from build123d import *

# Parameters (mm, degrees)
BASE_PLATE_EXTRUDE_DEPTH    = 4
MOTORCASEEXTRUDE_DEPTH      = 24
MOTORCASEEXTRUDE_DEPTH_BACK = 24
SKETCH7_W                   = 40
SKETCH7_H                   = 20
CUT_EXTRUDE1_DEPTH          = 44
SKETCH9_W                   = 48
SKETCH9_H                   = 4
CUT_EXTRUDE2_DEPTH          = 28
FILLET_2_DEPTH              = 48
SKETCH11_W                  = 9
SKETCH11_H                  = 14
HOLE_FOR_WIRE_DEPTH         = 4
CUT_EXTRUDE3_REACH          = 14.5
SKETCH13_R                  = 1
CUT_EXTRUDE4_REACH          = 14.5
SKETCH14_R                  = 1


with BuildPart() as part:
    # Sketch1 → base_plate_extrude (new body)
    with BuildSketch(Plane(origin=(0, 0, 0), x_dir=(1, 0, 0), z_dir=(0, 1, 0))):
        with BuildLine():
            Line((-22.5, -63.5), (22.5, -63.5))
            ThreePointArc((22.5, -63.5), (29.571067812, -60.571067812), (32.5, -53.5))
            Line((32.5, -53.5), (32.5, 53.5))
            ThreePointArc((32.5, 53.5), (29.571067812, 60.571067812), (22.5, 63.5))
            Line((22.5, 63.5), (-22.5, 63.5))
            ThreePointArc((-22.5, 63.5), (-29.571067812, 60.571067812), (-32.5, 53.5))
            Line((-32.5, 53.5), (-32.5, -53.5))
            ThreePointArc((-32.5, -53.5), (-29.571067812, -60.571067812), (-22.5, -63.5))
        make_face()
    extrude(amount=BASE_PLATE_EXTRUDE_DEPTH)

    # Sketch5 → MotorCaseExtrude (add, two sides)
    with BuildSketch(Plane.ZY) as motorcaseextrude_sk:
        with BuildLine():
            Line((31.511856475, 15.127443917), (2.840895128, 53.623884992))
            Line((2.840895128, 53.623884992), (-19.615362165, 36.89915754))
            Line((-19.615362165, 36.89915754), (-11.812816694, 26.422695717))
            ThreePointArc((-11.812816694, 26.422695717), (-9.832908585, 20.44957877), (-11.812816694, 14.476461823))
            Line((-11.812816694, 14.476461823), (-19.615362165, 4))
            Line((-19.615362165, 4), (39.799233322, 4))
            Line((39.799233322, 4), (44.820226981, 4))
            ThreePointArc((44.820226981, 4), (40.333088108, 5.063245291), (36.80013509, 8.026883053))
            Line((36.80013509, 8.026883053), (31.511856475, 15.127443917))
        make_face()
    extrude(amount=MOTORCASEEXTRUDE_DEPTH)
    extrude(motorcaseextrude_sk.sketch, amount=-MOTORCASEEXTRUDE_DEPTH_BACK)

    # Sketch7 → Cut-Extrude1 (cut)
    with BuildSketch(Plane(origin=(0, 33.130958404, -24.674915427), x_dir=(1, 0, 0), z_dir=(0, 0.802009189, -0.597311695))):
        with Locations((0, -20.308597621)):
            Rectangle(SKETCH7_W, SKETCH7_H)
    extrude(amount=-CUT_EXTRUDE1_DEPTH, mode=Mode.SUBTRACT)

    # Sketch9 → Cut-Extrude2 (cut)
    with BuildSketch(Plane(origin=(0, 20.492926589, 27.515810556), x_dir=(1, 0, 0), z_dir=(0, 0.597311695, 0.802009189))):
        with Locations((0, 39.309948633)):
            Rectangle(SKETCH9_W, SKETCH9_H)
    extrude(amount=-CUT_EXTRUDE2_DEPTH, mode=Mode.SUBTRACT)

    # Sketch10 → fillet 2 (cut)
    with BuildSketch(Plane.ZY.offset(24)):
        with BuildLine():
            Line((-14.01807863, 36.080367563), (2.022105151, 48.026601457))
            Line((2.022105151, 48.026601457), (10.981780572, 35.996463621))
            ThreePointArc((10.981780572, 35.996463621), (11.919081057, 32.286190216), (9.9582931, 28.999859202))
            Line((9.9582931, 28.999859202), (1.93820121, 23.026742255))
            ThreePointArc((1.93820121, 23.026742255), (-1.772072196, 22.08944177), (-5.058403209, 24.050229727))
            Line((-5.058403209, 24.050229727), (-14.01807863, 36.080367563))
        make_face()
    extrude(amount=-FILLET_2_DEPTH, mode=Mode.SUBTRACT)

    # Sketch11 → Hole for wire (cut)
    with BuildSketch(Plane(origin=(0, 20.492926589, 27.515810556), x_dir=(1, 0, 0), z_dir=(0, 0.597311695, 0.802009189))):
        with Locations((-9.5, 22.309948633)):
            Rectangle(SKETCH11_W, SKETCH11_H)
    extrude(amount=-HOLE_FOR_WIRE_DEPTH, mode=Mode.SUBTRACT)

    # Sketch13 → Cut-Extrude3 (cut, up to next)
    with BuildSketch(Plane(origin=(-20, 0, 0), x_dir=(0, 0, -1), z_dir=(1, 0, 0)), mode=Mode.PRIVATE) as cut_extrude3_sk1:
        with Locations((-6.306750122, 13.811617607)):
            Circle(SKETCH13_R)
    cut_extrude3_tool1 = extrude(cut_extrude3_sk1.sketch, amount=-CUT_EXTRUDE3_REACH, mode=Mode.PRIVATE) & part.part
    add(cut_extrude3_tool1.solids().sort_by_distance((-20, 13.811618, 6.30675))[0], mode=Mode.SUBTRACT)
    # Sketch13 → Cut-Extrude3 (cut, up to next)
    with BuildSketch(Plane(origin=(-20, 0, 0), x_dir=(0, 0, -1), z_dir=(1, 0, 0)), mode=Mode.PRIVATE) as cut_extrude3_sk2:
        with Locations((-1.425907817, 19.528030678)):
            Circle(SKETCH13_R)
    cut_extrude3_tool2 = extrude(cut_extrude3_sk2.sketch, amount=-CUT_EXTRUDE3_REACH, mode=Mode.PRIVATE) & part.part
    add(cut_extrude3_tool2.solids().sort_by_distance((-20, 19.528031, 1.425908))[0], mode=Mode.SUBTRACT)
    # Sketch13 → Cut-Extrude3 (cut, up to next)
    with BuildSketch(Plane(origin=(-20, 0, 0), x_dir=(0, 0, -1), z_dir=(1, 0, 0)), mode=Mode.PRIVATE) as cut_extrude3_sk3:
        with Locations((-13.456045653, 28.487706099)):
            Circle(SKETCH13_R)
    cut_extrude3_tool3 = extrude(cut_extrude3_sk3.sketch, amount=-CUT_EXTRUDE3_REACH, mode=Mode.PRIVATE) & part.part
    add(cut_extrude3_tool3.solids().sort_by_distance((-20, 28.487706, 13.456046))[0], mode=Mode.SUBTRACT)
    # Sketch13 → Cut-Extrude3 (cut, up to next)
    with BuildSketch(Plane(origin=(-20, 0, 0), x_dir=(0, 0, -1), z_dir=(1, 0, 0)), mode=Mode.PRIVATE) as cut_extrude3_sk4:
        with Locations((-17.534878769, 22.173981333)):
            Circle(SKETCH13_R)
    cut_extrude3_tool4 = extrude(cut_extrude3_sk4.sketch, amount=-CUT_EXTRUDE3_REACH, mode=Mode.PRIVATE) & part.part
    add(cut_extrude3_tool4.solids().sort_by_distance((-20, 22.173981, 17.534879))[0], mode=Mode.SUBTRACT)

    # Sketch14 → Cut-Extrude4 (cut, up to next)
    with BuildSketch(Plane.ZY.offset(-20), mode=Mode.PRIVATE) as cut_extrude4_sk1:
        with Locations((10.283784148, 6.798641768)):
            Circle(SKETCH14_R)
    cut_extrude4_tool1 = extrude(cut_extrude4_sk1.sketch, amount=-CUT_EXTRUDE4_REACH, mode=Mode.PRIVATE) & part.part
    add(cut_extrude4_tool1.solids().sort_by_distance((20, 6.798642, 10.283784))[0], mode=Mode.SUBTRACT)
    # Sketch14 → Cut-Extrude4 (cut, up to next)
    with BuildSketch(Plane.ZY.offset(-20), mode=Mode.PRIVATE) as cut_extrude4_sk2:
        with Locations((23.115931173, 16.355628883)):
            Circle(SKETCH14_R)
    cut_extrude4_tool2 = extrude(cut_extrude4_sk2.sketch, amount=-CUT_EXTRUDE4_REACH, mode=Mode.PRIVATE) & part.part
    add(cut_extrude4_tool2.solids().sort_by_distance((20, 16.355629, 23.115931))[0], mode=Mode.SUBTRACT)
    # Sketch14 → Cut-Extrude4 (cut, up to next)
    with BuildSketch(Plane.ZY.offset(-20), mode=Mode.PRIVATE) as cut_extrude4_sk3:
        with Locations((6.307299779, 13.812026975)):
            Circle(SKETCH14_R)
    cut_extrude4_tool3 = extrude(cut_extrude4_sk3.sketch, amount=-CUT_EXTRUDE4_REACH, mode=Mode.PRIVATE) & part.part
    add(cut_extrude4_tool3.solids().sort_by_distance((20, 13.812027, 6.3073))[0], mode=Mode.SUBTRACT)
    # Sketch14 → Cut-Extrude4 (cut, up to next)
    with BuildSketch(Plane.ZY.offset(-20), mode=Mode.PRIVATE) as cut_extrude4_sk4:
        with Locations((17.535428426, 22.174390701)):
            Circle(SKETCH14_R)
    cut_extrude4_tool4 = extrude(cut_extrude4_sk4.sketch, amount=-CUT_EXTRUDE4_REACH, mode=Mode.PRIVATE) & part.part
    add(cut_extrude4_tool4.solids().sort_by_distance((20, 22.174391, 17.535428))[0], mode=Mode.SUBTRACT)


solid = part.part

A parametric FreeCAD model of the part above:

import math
import FreeCAD as App
import Part
import Sketcher
from FreeCAD import Vector
Q = App.Units.Quantity

doc = App.newDocument("Part")
body = doc.addObject("PartDesign::Body", "Body")

# Sketch on XZ plane
sketch1 = body.newObject("Sketcher::SketchObject", "Sketch")
sketch1.AttachmentSupport = (doc.getObject("XZ_Plane"), [""])
sketch1.MapMode = "FlatFace"
sketch1.addGeometry([
    Part.LineSegment(Vector(-22, 64, 0), Vector(22, 64, 0)),  # 0
    Part.ArcOfCircle(Part.Circle(Vector(22, 54, 0), Vector(0, 0, 1), 10), math.radians(0), math.radians(90)),  # 1
    Part.LineSegment(Vector(32, 54, 0), Vector(32, -54, 0)),  # 2
    Part.ArcOfCircle(Part.Circle(Vector(22, -54, 0), Vector(0, 0, 1), 10), math.radians(-90), math.radians(0)),  # 3
    Part.LineSegment(Vector(22, -64, 0), Vector(-22, -64, 0)),  # 4
    Part.ArcOfCircle(Part.Circle(Vector(-22, -54, 0), Vector(0, 0, 1), 10), math.radians(180), math.radians(270)),  # 5
    Part.LineSegment(Vector(-32, -54, 0), Vector(-32, 54, 0)),  # 6
    Part.ArcOfCircle(Part.Circle(Vector(-22, 54, 0), Vector(0, 0, 1), 10), math.radians(90), math.radians(180)),  # 7
], False)
sketch1.addConstraint([
    Sketcher.Constraint("Tangent", 0, 2, 1, 2),
    Sketcher.Constraint("Tangent", 1, 1, 2, 1),
    Sketcher.Constraint("Tangent", 2, 2, 3, 2),
    Sketcher.Constraint("Tangent", 3, 1, 4, 1),
    Sketcher.Constraint("Tangent", 4, 2, 5, 2),
    Sketcher.Constraint("Tangent", 5, 1, 6, 1),
    Sketcher.Constraint("Tangent", 6, 2, 7, 2),
    Sketcher.Constraint("Tangent", 7, 1, 0, 1),
    Sketcher.Constraint("Horizontal", 0),
    Sketcher.Constraint("Vertical", 2),
    Sketcher.Constraint("Horizontal", 4),
    Sketcher.Constraint("Vertical", 6),
    Sketcher.Constraint("Equal", 1, 3),
    Sketcher.Constraint("Equal", 3, 5),
    Sketcher.Constraint("Equal", 5, 7),
    Sketcher.Constraint("Symmetric", 1, 3, 5, 3, -1, 1),
    Sketcher.Constraint("Radius", 1, Q("10 mm")),
    Sketcher.Constraint("DistanceX", 0, 1, 0, 2, Q("45 mm")),
    Sketcher.Constraint("DistanceY", 2, 2, 2, 1, Q("107 mm")),
])
pad1 = body.newObject("PartDesign::Pad", "Pad")
pad1.Profile = sketch1
pad1.Length = 4
pad1.Reversed = True

# Sketch on YZ plane
sketch2 = body.newObject("Sketcher::SketchObject", "Sketch001")
sketch2.AttachmentSupport = (doc.getObject("YZ_Plane"), [""])
sketch2.MapMode = "FlatFace"
sketch2.addGeometry([
    Part.LineSegment(Vector(15, 32, 0), Vector(54, 3, 0)),  # 0
    Part.LineSegment(Vector(54, 3, 0), Vector(37, -20, 0)),  # 1
    Part.LineSegment(Vector(37, -20, 0), Vector(26, -12, 0)),  # 2
    Part.ArcOfCircle(Part.Circle(Vector(20, -20, 0), Vector(0, 0, 1), 10), math.radians(53), math.radians(127)),  # 3
    Part.LineSegment(Vector(14, -12, 0), Vector(4, -20, 0)),  # 4
    Part.LineSegment(Vector(4, -20, 0), Vector(4, 45, 0)),  # 5
    Part.ArcOfCircle(Part.Circle(Vector(14, 45, 0), Vector(0, 0, 1), 10), math.radians(-180), math.radians(-127)),  # 6
    Part.LineSegment(Vector(8, 37, 0), Vector(15, 32, 0)),  # 7
], False)
sketch2.addConstraint([
    Sketcher.Constraint("Coincident", 0, 2, 1, 1),
    Sketcher.Constraint("Coincident", 1, 2, 2, 1),
    Sketcher.Constraint("Tangent", 2, 2, 3, 1),
    Sketcher.Constraint("Tangent", 3, 2, 4, 1),
    Sketcher.Constraint("Coincident", 4, 2, 5, 1),
    Sketcher.Constraint("Tangent", 5, 2, 6, 1),
    Sketcher.Constraint("Tangent", 6, 2, 7, 1),
    Sketcher.Constraint("Coincident", 7, 2, 0, 1),
    Sketcher.Constraint("Vertical", 5),
    Sketcher.Constraint("Equal", 3, 6),
    Sketcher.Constraint("Perpendicular", 0, 1),
    Sketcher.Constraint("Perpendicular", 1, 2),
    Sketcher.Constraint("Parallel", 2, 7),
    Sketcher.Constraint("Horizontal", 2, 2, 3, 2),
    Sketcher.Constraint("Horizontal", 1, 2, 4, 2),
    Sketcher.Constraint("Radius", 3, Q("10 mm")),
    Sketcher.Constraint("Distance", 0, Q("48 mm")),
    Sketcher.Constraint("Distance", 1, Q("28 mm")),
    Sketcher.Constraint("DistanceX", -1, 1, 6, 3, Q("14 mm")),
    Sketcher.Constraint("DistanceY", 5, 1, 5, 2, Q("64.435589 mm")),
    Sketcher.Constraint("Distance", 2, Q("13.06277 mm")),
    Sketcher.Constraint("DistanceY", 3, 3, -1, 1, Q("19.832909 mm")),
])
pad2 = body.newObject("PartDesign::Pad", "Pad001")
pad2.Profile = sketch2
pad2.Type = "TwoLengths"
pad2.Length = 24
pad2.Length2 = 24
pad2.Reversed = True

# Sketch on an angled plane
sketch3 = body.newObject("Sketcher::SketchObject", "Sketch002")
sketch3.Placement = App.Placement(Vector(0, 33.130958, -24.674915), App.Rotation(Vector(1, 0, 0), Vector(0, -0.597311695, -0.802009189), Vector(0, 0.802009189, -0.597311695), "ZXY"))
sketch3.addGeometry([
    Part.LineSegment(Vector(-20, -10, 0), Vector(-20, -30, 0)),
    Part.LineSegment(Vector(-20, -30, 0), Vector(20, -30, 0)),
    Part.LineSegment(Vector(20, -30, 0), Vector(20, -10, 0)),
    Part.LineSegment(Vector(20, -10, 0), Vector(-20, -10, 0)),
], False)
sketch3.addConstraint([
    Sketcher.Constraint("Coincident", 0, 2, 1, 1),
    Sketcher.Constraint("Coincident", 1, 2, 2, 1),
    Sketcher.Constraint("Coincident", 2, 2, 3, 1),
    Sketcher.Constraint("Coincident", 3, 2, 0, 1),
    Sketcher.Constraint("Vertical", 0),
    Sketcher.Constraint("Horizontal", 1),
    Sketcher.Constraint("Vertical", 2),
    Sketcher.Constraint("Horizontal", 3),
    Sketcher.Constraint("DistanceX", 1, 1, 1, 2, Q("40 mm")),
    Sketcher.Constraint("DistanceY", 0, 2, 0, 1, Q("20 mm")),
    Sketcher.Constraint("DistanceX", 0, 2, -1, 1, Q("20 mm")),
    Sketcher.Constraint("DistanceY", 0, 2, -1, 1, Q("30.308598 mm")),
])
pocket1 = body.newObject("PartDesign::Pocket", "Pocket")
pocket1.Profile = sketch3
pocket1.Length = 44

# Sketch on an angled plane
sketch4 = body.newObject("Sketcher::SketchObject", "Sketch003")
sketch4.Placement = App.Placement(Vector(0, 20.492927, 27.515811), App.Rotation(Vector(1, 0, 0), Vector(0, 0.802009189, -0.597311695), Vector(0, 0.597311695, 0.802009189), "ZXY"))
sketch4.addGeometry([
    Part.LineSegment(Vector(-24, 41.3, 0), Vector(-24, 37.3, 0)),
    Part.LineSegment(Vector(-24, 37.3, 0), Vector(24, 37.3, 0)),
    Part.LineSegment(Vector(24, 37.3, 0), Vector(24, 41.3, 0)),
    Part.LineSegment(Vector(24, 41.3, 0), Vector(-24, 41.3, 0)),
], False)
sketch4.addConstraint([
    Sketcher.Constraint("Coincident", 0, 2, 1, 1),
    Sketcher.Constraint("Coincident", 1, 2, 2, 1),
    Sketcher.Constraint("Coincident", 2, 2, 3, 1),
    Sketcher.Constraint("Coincident", 3, 2, 0, 1),
    Sketcher.Constraint("Vertical", 0),
    Sketcher.Constraint("Horizontal", 1),
    Sketcher.Constraint("Vertical", 2),
    Sketcher.Constraint("Horizontal", 3),
    Sketcher.Constraint("DistanceX", 1, 1, 1, 2, Q("48 mm")),
    Sketcher.Constraint("DistanceY", 0, 2, 0, 1, Q("4 mm")),
    Sketcher.Constraint("DistanceX", 0, 2, -1, 1, Q("24 mm")),
    Sketcher.Constraint("DistanceY", -1, 1, 0, 2, Q("37.309949 mm")),
])
pocket2 = body.newObject("PartDesign::Pocket", "Pocket001")
pocket2.Profile = sketch4
pocket2.Length = 28

# Sketch on YZ plane
sketch5 = body.newObject("Sketcher::SketchObject", "Sketch004")
sketch5.AttachmentSupport = (doc.getObject("YZ_Plane"), [""])
sketch5.MapMode = "FlatFace"
sketch5.AttachmentOffset = App.Placement(Vector(0, 0, -24), App.Rotation())
sketch5.addGeometry([
    Part.LineSegment(Vector(48, 2, 0), Vector(36.1, -14, 0)),  # 0
    Part.LineSegment(Vector(36.1, -14, 0), Vector(24.1, -5.1, 0)),  # 1
    Part.ArcOfCircle(Part.Circle(Vector(27, -1, 0), Vector(0, 0, 1), 5), math.radians(143), math.radians(233)),  # 2
    Part.LineSegment(Vector(23, 1.9, 0), Vector(29, 10, 0)),  # 3
    Part.ArcOfCircle(Part.Circle(Vector(33, 7, 0), Vector(0, 0, 1), 5), math.radians(53), math.radians(143)),  # 4
    Part.LineSegment(Vector(36, 11, 0), Vector(48, 2, 0)),  # 5
], False)
sketch5.addConstraint([
    Sketcher.Constraint("Coincident", 0, 2, 1, 1),
    Sketcher.Constraint("Tangent", 1, 2, 2, 2),
    Sketcher.Constraint("Tangent", 2, 1, 3, 1),
    Sketcher.Constraint("Tangent", 3, 2, 4, 2),
    Sketcher.Constraint("Tangent", 4, 1, 5, 1),
    Sketcher.Constraint("Coincident", 5, 2, 0, 1),
    Sketcher.Constraint("Equal", 2, 4),
    Sketcher.Constraint("Perpendicular", 0, 1),
    Sketcher.Constraint("Perpendicular", 1, 3),
    Sketcher.Constraint("Perpendicular", 3, 5),
    Sketcher.Constraint("Radius", 2, Q("5 mm")),
    Sketcher.Constraint("Distance", 0, Q("20 mm")),
    Sketcher.Constraint("Distance", 1, Q("15 mm")),
    Sketcher.Constraint("DistanceY", -1, 1, 2, 1, Q("1.938201 mm")),
    Sketcher.Constraint("DistanceX", -1, 1, 5, 2, Q("48.026601 mm")),
    Sketcher.Constraint("DistanceX", -1, 1, 2, 3, Q("27.036788 mm")),
])
pocket3 = body.newObject("PartDesign::Pocket", "Pocket002")
pocket3.Profile = sketch5
pocket3.Length = 48
pocket3.Reversed = True

# Sketch on an angled plane
sketch6 = body.newObject("Sketcher::SketchObject", "Sketch005")
sketch6.Placement = App.Placement(Vector(0, 20.492927, 27.515811), App.Rotation(Vector(1, 0, 0), Vector(0, 0.802009189, -0.597311695), Vector(0, 0.597311695, 0.802009189), "ZXY"))
sketch6.addGeometry([
    Part.LineSegment(Vector(-14, 29, 0), Vector(-14, 15, 0)),
    Part.LineSegment(Vector(-14, 15, 0), Vector(-5, 15, 0)),
    Part.LineSegment(Vector(-5, 15, 0), Vector(-5, 29, 0)),
    Part.LineSegment(Vector(-5, 29, 0), Vector(-14, 29, 0)),
], False)
sketch6.addConstraint([
    Sketcher.Constraint("Coincident", 0, 2, 1, 1),
    Sketcher.Constraint("Coincident", 1, 2, 2, 1),
    Sketcher.Constraint("Coincident", 2, 2, 3, 1),
    Sketcher.Constraint("Coincident", 3, 2, 0, 1),
    Sketcher.Constraint("Vertical", 0),
    Sketcher.Constraint("Horizontal", 1),
    Sketcher.Constraint("Vertical", 2),
    Sketcher.Constraint("Horizontal", 3),
    Sketcher.Constraint("DistanceX", 1, 1, 1, 2, Q("9 mm")),
    Sketcher.Constraint("DistanceY", 0, 2, 0, 1, Q("14 mm")),
    Sketcher.Constraint("DistanceX", 0, 2, -1, 1, Q("14 mm")),
    Sketcher.Constraint("DistanceY", -1, 1, 0, 2, Q("15.309949 mm")),
])
pocket4 = body.newObject("PartDesign::Pocket", "Pocket003")
pocket4.Profile = sketch6
pocket4.Length = 4

# Sketch on YZ plane
sketch7 = body.newObject("Sketcher::SketchObject", "Sketch006")
sketch7.AttachmentSupport = (doc.getObject("YZ_Plane"), [""])
sketch7.MapMode = "FlatFace"
sketch7.AttachmentOffset = App.Placement(Vector(0, 0, -20), App.Rotation())
sketch7.addGeometry(Part.Circle(Vector(13.8, 6.3, 0), Vector(0, 0, 1), 1), False)
sketch7.addConstraint([
    Sketcher.Constraint("Diameter", 0, Q("2 mm")),
    Sketcher.Constraint("DistanceY", -1, 1, 0, 3, Q("6.30675 mm")),
    Sketcher.Constraint("DistanceX", -1, 1, 0, 3, Q("13.811618 mm")),
])
pocket5 = body.newObject("PartDesign::Pocket", "Pocket004")
pocket5.Profile = sketch7
pocket5.Type = "UpToFirst"

# Sketch on YZ plane
sketch8 = body.newObject("Sketcher::SketchObject", "Sketch007")
sketch8.AttachmentSupport = (doc.getObject("YZ_Plane"), [""])
sketch8.MapMode = "FlatFace"
sketch8.AttachmentOffset = App.Placement(Vector(0, 0, -20), App.Rotation())
sketch8.addGeometry(Part.Circle(Vector(19.5, 1.4, 0), Vector(0, 0, 1), 1), False)
sketch8.addConstraint([
    Sketcher.Constraint("Diameter", 0, Q("2 mm")),
    Sketcher.Constraint("DistanceX", -1, 1, 0, 3, Q("19.528031 mm")),
    Sketcher.Constraint("DistanceY", -1, 1, 0, 3, Q("1.425908 mm")),
])
pocket6 = body.newObject("PartDesign::Pocket", "Pocket005")
pocket6.Profile = sketch8
pocket6.Type = "UpToFirst"

# Sketch on YZ plane
sketch9 = body.newObject("Sketcher::SketchObject", "Sketch008")
sketch9.AttachmentSupport = (doc.getObject("YZ_Plane"), [""])
sketch9.MapMode = "FlatFace"
sketch9.AttachmentOffset = App.Placement(Vector(0, 0, -20), App.Rotation())
sketch9.addGeometry(Part.Circle(Vector(28.5, 13.5, 0), Vector(0, 0, 1), 1), False)
sketch9.addConstraint([
    Sketcher.Constraint("Diameter", 0, Q("2 mm")),
    Sketcher.Constraint("DistanceX", -1, 1, 0, 3, Q("28.487706 mm")),
    Sketcher.Constraint("DistanceY", -1, 1, 0, 3, Q("13.456046 mm")),
])
pocket7 = body.newObject("PartDesign::Pocket", "Pocket006")
pocket7.Profile = sketch9
pocket7.Type = "UpToFirst"

# Sketch on YZ plane
sketch10 = body.newObject("Sketcher::SketchObject", "Sketch009")
sketch10.AttachmentSupport = (doc.getObject("YZ_Plane"), [""])
sketch10.MapMode = "FlatFace"
sketch10.AttachmentOffset = App.Placement(Vector(0, 0, -20), App.Rotation())
sketch10.addGeometry(Part.Circle(Vector(22.2, 17.5, 0), Vector(0, 0, 1), 1), False)
sketch10.addConstraint([
    Sketcher.Constraint("Diameter", 0, Q("2 mm")),
    Sketcher.Constraint("DistanceX", -1, 1, 0, 3, Q("22.173981 mm")),
    Sketcher.Constraint("DistanceY", -1, 1, 0, 3, Q("17.534879 mm")),
])
pocket8 = body.newObject("PartDesign::Pocket", "Pocket007")
pocket8.Profile = sketch10
pocket8.Type = "UpToFirst"

# Sketch on YZ plane
sketch11 = body.newObject("Sketcher::SketchObject", "Sketch010")
sketch11.AttachmentSupport = (doc.getObject("YZ_Plane"), [""])
sketch11.MapMode = "FlatFace"
sketch11.AttachmentOffset = App.Placement(Vector(0, 0, 20), App.Rotation())
sketch11.addGeometry(Part.Circle(Vector(6.8, 10.3, 0), Vector(0, 0, 1), 1), False)
sketch11.addConstraint([
    Sketcher.Constraint("Diameter", 0, Q("2 mm")),
    Sketcher.Constraint("DistanceX", -1, 1, 0, 3, Q("6.798642 mm")),
    Sketcher.Constraint("DistanceY", -1, 1, 0, 3, Q("10.283784 mm")),
])
pocket9 = body.newObject("PartDesign::Pocket", "Pocket008")
pocket9.Profile = sketch11
pocket9.Type = "UpToFirst"
pocket9.Reversed = True

# Sketch on YZ plane
sketch12 = body.newObject("Sketcher::SketchObject", "Sketch011")
sketch12.AttachmentSupport = (doc.getObject("YZ_Plane"), [""])
sketch12.MapMode = "FlatFace"
sketch12.AttachmentOffset = App.Placement(Vector(0, 0, 20), App.Rotation())
sketch12.addGeometry(Part.Circle(Vector(16.4, 23.1, 0), Vector(0, 0, 1), 1), False)
sketch12.addConstraint([
    Sketcher.Constraint("Diameter", 0, Q("2 mm")),
    Sketcher.Constraint("DistanceX", -1, 1, 0, 3, Q("16.355629 mm")),
    Sketcher.Constraint("DistanceY", -1, 1, 0, 3, Q("23.115931 mm")),
])
pocket10 = body.newObject("PartDesign::Pocket", "Pocket009")
pocket10.Profile = sketch12
pocket10.Type = "UpToFirst"
pocket10.Reversed = True

# Sketch on YZ plane
sketch13 = body.newObject("Sketcher::SketchObject", "Sketch012")
sketch13.AttachmentSupport = (doc.getObject("YZ_Plane"), [""])
sketch13.MapMode = "FlatFace"
sketch13.AttachmentOffset = App.Placement(Vector(0, 0, 20), App.Rotation())
sketch13.addGeometry(Part.Circle(Vector(13.8, 6.3, 0), Vector(0, 0, 1), 1), False)
sketch13.addConstraint([
    Sketcher.Constraint("Diameter", 0, Q("2 mm")),
    Sketcher.Constraint("DistanceY", -1, 1, 0, 3, Q("6.3073 mm")),
    Sketcher.Constraint("DistanceX", -1, 1, 0, 3, Q("13.812027 mm")),
])
pocket11 = body.newObject("PartDesign::Pocket", "Pocket010")
pocket11.Profile = sketch13
pocket11.Type = "UpToFirst"
pocket11.Reversed = True

# Sketch on YZ plane
sketch14 = body.newObject("Sketcher::SketchObject", "Sketch013")
sketch14.AttachmentSupport = (doc.getObject("YZ_Plane"), [""])
sketch14.MapMode = "FlatFace"
sketch14.AttachmentOffset = App.Placement(Vector(0, 0, 20), App.Rotation())
sketch14.addGeometry(Part.Circle(Vector(22.2, 17.5, 0), Vector(0, 0, 1), 1), False)
sketch14.addConstraint([
    Sketcher.Constraint("Diameter", 0, Q("2 mm")),
    Sketcher.Constraint("DistanceX", -1, 1, 0, 3, Q("22.174391 mm")),
    Sketcher.Constraint("DistanceY", -1, 1, 0, 3, Q("17.535428 mm")),
])
pocket12 = body.newObject("PartDesign::Pocket", "Pocket011")
pocket12.Profile = sketch14
pocket12.Type = "UpToFirst"
pocket12.Reversed = True

doc.recompute()
